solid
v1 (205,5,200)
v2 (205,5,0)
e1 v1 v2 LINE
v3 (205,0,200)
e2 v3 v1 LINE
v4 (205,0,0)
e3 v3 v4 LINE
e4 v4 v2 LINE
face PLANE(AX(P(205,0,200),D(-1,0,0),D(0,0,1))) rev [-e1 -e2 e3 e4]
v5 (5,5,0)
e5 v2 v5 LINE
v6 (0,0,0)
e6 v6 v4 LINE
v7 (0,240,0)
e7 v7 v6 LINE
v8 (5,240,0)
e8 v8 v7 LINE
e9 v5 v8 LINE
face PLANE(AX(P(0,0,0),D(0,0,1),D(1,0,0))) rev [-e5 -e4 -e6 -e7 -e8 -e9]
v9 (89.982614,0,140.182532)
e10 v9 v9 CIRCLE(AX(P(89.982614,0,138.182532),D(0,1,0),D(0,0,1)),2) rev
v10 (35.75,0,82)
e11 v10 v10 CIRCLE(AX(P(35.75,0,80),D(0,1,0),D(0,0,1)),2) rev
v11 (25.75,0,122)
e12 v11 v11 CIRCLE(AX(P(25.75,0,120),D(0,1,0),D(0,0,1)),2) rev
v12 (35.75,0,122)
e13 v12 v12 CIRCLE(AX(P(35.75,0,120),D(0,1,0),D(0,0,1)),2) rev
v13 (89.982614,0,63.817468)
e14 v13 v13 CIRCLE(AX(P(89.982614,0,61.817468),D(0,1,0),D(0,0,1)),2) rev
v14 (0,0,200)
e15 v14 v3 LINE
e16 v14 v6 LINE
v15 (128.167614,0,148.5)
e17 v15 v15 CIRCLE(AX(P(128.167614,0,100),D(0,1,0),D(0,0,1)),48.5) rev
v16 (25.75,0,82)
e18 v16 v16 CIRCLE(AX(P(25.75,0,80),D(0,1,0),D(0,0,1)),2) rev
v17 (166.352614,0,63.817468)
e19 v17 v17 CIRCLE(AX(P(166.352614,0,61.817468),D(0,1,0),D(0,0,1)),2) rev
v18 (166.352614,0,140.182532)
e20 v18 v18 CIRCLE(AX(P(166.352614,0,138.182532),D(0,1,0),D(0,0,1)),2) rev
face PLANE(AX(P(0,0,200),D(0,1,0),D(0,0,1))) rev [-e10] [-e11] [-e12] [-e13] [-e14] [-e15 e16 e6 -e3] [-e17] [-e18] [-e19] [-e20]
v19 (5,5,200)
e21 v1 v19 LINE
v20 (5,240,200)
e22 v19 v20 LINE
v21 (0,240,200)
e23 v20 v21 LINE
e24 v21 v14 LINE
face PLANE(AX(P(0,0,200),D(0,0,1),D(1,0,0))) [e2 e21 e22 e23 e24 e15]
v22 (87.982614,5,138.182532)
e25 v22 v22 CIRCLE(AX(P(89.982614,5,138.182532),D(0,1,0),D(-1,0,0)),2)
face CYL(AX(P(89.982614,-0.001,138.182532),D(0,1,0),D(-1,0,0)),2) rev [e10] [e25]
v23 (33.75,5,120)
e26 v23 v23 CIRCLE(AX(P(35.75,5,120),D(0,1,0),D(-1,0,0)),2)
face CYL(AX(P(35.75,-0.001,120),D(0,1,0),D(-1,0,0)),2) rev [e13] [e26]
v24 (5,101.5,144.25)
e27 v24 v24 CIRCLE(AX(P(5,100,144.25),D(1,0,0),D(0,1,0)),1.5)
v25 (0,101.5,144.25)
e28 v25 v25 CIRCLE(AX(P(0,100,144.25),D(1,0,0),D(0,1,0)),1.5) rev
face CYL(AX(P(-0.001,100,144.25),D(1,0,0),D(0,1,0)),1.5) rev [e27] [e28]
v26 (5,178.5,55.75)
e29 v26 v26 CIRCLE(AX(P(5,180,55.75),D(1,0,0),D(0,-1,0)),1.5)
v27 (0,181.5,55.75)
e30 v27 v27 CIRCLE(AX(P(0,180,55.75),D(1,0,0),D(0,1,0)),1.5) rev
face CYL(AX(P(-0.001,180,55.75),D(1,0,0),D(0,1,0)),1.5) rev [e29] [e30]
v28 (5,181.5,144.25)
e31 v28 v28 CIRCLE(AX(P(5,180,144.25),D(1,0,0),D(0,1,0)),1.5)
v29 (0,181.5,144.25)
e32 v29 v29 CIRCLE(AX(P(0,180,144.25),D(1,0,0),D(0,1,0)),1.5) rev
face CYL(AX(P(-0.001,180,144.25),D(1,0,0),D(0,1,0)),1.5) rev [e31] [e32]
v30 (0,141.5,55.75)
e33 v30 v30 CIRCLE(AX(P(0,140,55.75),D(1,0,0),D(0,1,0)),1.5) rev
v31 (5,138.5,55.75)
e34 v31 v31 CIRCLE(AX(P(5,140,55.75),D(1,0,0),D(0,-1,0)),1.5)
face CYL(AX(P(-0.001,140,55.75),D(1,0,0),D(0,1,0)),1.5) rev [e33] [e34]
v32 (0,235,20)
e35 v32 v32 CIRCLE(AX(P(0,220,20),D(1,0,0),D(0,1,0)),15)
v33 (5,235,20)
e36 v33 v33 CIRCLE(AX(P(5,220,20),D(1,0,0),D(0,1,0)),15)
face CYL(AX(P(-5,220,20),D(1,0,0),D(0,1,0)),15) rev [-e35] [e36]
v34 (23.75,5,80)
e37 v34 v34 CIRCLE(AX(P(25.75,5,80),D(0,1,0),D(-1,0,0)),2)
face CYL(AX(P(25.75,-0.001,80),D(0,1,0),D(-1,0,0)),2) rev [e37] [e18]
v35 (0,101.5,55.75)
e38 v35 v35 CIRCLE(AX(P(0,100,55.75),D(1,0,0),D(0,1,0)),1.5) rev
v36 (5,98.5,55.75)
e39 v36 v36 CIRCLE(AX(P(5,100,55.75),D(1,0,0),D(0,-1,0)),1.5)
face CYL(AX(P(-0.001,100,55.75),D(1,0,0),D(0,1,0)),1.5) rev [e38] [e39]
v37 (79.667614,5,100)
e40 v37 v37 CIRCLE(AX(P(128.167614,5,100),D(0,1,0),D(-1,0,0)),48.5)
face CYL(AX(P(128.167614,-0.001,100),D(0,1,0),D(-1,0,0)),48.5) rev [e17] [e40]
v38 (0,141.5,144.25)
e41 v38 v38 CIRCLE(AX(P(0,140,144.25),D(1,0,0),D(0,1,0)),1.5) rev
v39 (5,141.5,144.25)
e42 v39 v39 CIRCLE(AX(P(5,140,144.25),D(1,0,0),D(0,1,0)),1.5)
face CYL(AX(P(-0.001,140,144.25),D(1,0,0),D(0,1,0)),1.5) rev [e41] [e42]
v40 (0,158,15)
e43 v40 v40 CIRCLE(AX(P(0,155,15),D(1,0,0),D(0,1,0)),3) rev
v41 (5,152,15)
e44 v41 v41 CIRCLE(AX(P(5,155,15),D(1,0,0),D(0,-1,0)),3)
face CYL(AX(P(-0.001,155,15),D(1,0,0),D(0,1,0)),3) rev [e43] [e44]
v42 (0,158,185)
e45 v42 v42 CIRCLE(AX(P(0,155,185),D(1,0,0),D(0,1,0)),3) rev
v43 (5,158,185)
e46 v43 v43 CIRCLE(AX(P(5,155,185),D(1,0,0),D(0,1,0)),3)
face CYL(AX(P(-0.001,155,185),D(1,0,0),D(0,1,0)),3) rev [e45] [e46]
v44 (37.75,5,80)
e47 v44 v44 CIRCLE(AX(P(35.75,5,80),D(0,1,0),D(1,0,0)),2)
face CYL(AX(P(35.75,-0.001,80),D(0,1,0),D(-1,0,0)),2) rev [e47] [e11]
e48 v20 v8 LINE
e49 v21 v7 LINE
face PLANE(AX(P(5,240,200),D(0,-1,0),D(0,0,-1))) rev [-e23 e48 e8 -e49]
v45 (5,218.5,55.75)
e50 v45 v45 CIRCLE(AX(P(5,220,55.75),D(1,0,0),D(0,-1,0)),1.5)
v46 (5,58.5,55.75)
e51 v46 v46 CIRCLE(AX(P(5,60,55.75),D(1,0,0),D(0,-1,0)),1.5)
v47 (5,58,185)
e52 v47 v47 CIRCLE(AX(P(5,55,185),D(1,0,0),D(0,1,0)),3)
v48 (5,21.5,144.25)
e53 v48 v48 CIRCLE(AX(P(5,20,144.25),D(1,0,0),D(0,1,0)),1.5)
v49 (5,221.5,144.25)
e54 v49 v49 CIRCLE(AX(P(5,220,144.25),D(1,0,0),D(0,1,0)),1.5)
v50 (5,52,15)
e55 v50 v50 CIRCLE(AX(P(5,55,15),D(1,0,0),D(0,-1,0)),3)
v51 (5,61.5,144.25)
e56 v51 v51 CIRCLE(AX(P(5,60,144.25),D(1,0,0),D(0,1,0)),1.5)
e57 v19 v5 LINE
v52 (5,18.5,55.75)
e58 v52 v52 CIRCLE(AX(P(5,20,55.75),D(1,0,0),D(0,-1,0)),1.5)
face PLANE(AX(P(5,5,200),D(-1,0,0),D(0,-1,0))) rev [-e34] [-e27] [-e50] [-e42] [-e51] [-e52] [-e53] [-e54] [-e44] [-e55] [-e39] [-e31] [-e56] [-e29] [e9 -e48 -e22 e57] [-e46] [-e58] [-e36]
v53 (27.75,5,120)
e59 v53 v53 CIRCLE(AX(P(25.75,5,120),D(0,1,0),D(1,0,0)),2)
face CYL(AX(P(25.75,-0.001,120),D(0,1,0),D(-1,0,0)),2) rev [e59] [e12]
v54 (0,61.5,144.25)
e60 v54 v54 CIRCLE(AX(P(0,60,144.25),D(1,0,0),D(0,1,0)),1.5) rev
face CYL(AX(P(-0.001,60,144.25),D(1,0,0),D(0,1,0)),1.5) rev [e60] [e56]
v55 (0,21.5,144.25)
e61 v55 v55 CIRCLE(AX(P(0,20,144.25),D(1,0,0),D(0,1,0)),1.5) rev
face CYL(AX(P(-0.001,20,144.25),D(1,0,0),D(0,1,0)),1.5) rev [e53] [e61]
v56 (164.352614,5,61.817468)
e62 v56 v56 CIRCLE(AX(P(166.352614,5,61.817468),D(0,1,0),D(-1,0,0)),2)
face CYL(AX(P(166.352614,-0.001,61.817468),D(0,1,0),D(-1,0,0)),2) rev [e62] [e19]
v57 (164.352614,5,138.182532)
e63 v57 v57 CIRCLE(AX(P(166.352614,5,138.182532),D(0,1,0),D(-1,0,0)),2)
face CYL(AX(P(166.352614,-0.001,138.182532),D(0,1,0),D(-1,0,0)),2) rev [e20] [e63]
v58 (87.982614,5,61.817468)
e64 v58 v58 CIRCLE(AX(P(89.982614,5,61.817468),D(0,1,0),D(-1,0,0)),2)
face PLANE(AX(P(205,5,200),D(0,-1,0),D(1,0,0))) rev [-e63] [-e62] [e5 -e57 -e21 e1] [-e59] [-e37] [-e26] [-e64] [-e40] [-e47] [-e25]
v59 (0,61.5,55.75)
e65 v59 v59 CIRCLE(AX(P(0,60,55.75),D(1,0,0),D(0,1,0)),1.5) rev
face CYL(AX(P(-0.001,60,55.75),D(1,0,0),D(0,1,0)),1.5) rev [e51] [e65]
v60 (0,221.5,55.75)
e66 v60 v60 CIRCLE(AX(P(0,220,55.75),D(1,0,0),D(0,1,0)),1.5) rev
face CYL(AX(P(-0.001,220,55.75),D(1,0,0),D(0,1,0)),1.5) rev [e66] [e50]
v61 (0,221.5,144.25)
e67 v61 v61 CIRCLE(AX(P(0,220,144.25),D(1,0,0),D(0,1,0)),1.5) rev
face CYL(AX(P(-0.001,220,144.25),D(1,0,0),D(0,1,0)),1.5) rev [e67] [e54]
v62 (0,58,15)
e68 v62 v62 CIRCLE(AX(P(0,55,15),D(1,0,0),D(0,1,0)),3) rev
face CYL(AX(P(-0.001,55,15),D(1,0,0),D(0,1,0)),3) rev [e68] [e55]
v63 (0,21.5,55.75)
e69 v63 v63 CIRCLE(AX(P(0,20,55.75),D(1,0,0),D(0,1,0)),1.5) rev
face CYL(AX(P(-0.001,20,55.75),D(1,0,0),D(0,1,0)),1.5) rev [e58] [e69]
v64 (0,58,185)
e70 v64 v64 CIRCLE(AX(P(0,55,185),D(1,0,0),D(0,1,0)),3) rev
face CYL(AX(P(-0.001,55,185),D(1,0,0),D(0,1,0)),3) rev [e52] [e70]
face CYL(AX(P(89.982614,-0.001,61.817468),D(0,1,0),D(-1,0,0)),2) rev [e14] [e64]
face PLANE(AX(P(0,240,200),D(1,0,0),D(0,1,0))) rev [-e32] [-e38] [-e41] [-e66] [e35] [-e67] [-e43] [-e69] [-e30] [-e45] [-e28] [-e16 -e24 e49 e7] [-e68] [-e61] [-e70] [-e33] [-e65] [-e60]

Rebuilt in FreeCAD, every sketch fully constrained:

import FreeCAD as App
import Part
import Sketcher
from FreeCAD import Vector
Q = App.Units.Quantity

doc = App.newDocument("Part")
body = doc.addObject("PartDesign::Body", "Body")

sketch1 = body.newObject("Sketcher::SketchObject", "Sketch")
sketch1.AttachmentSupport = (doc.getObject("XY_Plane"), [""])
sketch1.MapMode = "FlatFace"
sketch1.addGeometry([
    Part.LineSegment(Vector(0, 240, 0), Vector(0, 0, 0)),
    Part.LineSegment(Vector(0, 0, 0), Vector(205, 0, 0)),
    Part.LineSegment(Vector(205, 0, 0), Vector(205, 5, 0)),
    Part.LineSegment(Vector(205, 5, 0), Vector(5, 5, 0)),
    Part.LineSegment(Vector(5, 5, 0), Vector(5, 240, 0)),
    Part.LineSegment(Vector(5, 240, 0), Vector(0, 240, 0)),
], False)
sketch1.addConstraint([
    Sketcher.Constraint("Coincident", 0, 2, 1, 1),
    Sketcher.Constraint("Coincident", 1, 2, 2, 1),
    Sketcher.Constraint("Coincident", 2, 2, 3, 1),
    Sketcher.Constraint("Coincident", 3, 2, 4, 1),
    Sketcher.Constraint("Coincident", 4, 2, 5, 1),
    Sketcher.Constraint("Coincident", 5, 2, 0, 1),
    Sketcher.Constraint("Vertical", 0),
    Sketcher.Constraint("Horizontal", 1),
    Sketcher.Constraint("Vertical", 2),
    Sketcher.Constraint("Horizontal", 3),
    Sketcher.Constraint("Vertical", 4),
    Sketcher.Constraint("Horizontal", 5),
    Sketcher.Constraint("Coincident", 0, 2, -1, 1),
    Sketcher.Constraint("Equal", 5, 2),
    Sketcher.Constraint("DistanceX", 1, 1, 1, 2, Q("205 mm")),
    Sketcher.Constraint("DistanceX", 3, 2, 3, 1, Q("200 mm")),
    Sketcher.Constraint("DistanceY", 0, 2, 0, 1, Q("240 mm")),
])
pad1 = body.newObject("PartDesign::Pad", "Pad")
pad1.Profile = sketch1
pad1.Length = 200

sketch2 = body.newObject("Sketcher::SketchObject", "Sketch001")
sketch2.AttachmentSupport = (doc.getObject("XZ_Plane"), [""])
sketch2.MapMode = "FlatFace"
sketch2.AttachmentOffset = App.Placement(Vector(0, 0, -5), App.Rotation())
sketch2.addGeometry(Part.Circle(Vector(128, 100, 0), Vector(0, 0, 1), 48), False)
sketch2.addConstraint([
    Sketcher.Constraint("Diameter", 0, Q("97 mm")),
    Sketcher.Constraint("DistanceY", -1, 1, 0, 3, Q("100 mm")),
    Sketcher.Constraint("DistanceX", -1, 1, 0, 3, Q("128.167614 mm")),
])
pocket1 = body.newObject("PartDesign::Pocket", "Pocket")
pocket1.Profile = sketch2
pocket1.Type = "UpToFirst"
pocket1.Reversed = True

sketch3 = body.newObject("Sketcher::SketchObject", "Sketch002")
sketch3.AttachmentSupport = (doc.getObject("XZ_Plane"), [""])
sketch3.MapMode = "FlatFace"
sketch3.AttachmentOffset = App.Placement(Vector(0, 0, -5), App.Rotation())
sketch3.addGeometry(Part.Circle(Vector(90, 61.8, 0), Vector(0, 0, 1), 2), False)
sketch3.addConstraint([
    Sketcher.Constraint("Diameter", 0, Q("4 mm")),
    Sketcher.Constraint("DistanceX", -1, 1, 0, 3, Q("89.982614 mm")),
    Sketcher.Constraint("DistanceY", -1, 1, 0, 3, Q("61.817468 mm")),
])
pocket2 = body.newObject("PartDesign::Pocket", "Pocket001")
pocket2.Profile = sketch3
pocket2.Type = "UpToFirst"
pocket2.Reversed = True

sketch4 = body.newObject("Sketcher::SketchObject", "Sketch003")
sketch4.AttachmentSupport = (doc.getObject("XZ_Plane"), [""])
sketch4.MapMode = "FlatFace"
sketch4.AttachmentOffset = App.Placement(Vector(0, 0, -5), App.Rotation())
sketch4.addGeometry(Part.Circle(Vector(166.4, 61.8, 0), Vector(0, 0, 1), 2), False)
sketch4.addConstraint([
    Sketcher.Constraint("Diameter", 0, Q("4 mm")),
    Sketcher.Constraint("DistanceX", -1, 1, 0, 3, Q("166.352614 mm")),
    Sketcher.Constraint("DistanceY", -1, 1, 0, 3, Q("61.817468 mm")),
])
pocket3 = body.newObject("PartDesign::Pocket", "Pocket002")
pocket3.Profile = sketch4
pocket3.Type = "UpToFirst"
pocket3.Reversed = True

sketch5 = body.newObject("Sketcher::SketchObject", "Sketch004")
sketch5.AttachmentSupport = (doc.getObject("XZ_Plane"), [""])
sketch5.MapMode = "FlatFace"
sketch5.AttachmentOffset = App.Placement(Vector(0, 0, -5), App.Rotation())
sketch5.addGeometry(Part.Circle(Vector(90, 138.2, 0), Vector(0, 0, 1), 2), False)
sketch5.addConstraint([
    Sketcher.Constraint("Diameter", 0, Q("4 mm")),
    Sketcher.Constraint("DistanceX", -1, 1, 0, 3, Q("89.982614 mm")),
    Sketcher.Constraint("DistanceY", -1, 1, 0, 3, Q("138.182532 mm")),
])
pocket4 = body.newObject("PartDesign::Pocket", "Pocket003")
pocket4.Profile = sketch5
pocket4.Type = "UpToFirst"
pocket4.Reversed = True

sketch6 = body.newObject("Sketcher::SketchObject", "Sketch005")
sketch6.AttachmentSupport = (doc.getObject("XZ_Plane"), [""])
sketch6.MapMode = "FlatFace"
sketch6.AttachmentOffset = App.Placement(Vector(0, 0, -5), App.Rotation())
sketch6.addGeometry(Part.Circle(Vector(166.4, 138.2, 0), Vector(0, 0, 1), 2), False)
sketch6.addConstraint([
    Sketcher.Constraint("Diameter", 0, Q("4 mm")),
    Sketcher.Constraint("DistanceX", -1, 1, 0, 3, Q("166.352614 mm")),
    Sketcher.Constraint("DistanceY", -1, 1, 0, 3, Q("138.182532 mm")),
])
pocket5 = body.newObject("PartDesign::Pocket", "Pocket004")
pocket5.Profile = sketch6
pocket5.Type = "UpToFirst"
pocket5.Reversed = True

sketch7 = body.newObject("Sketcher::SketchObject", "Sketch006")
sketch7.AttachmentSupport = (doc.getObject("XZ_Plane"), [""])
sketch7.MapMode = "FlatFace"
sketch7.AttachmentOffset = App.Placement(Vector(0, 0, -5), App.Rotation())
sketch7.addGeometry(Part.Circle(Vector(25.8, 80, 0), Vector(0, 0, 1), 2), False)
sketch7.addConstraint([
    Sketcher.Constraint("Diameter", 0, Q("4 mm")),
    Sketcher.Constraint("DistanceY", -1, 1, 0, 3, Q("80 mm")),
    Sketcher.Constraint("DistanceX", -1, 1, 0, 3, Q("25.75 mm")),
])
pocket6 = body.newObject("PartDesign::Pocket", "Pocket005")
pocket6.Profile = sketch7
pocket6.Type = "UpToFirst"
pocket6.Reversed = True

sketch8 = body.newObject("Sketcher::SketchObject", "Sketch007")
sketch8.AttachmentSupport = (doc.getObject("XZ_Plane"), [""])
sketch8.MapMode = "FlatFace"
sketch8.AttachmentOffset = App.Placement(Vector(0, 0, -5), App.Rotation())
sketch8.addGeometry(Part.Circle(Vector(25.8, 120, 0), Vector(0, 0, 1), 2), False)
sketch8.addConstraint([
    Sketcher.Constraint("Diameter", 0, Q("4 mm")),
    Sketcher.Constraint("DistanceY", -1, 1, 0, 3, Q("120 mm")),
    Sketcher.Constraint("DistanceX", -1, 1, 0, 3, Q("25.75 mm")),
])
pocket7 = body.newObject("PartDesign::Pocket", "Pocket006")
pocket7.Profile = sketch8
pocket7.Type = "UpToFirst"
pocket7.Reversed = True

sketch9 = body.newObject("Sketcher::SketchObject", "Sketch008")
sketch9.AttachmentSupport = (doc.getObject("XZ_Plane"), [""])
sketch9.MapMode = "FlatFace"
sketch9.AttachmentOffset = App.Placement(Vector(0, 0, -5), App.Rotation())
sketch9.addGeometry(Part.Circle(Vector(35.8, 120, 0), Vector(0, 0, 1), 2), False)
sketch9.addConstraint([
    Sketcher.Constraint("Diameter", 0, Q("4 mm")),
    Sketcher.Constraint("DistanceY", -1, 1, 0, 3, Q("120 mm")),
    Sketcher.Constraint("DistanceX", -1, 1, 0, 3, Q("35.75 mm")),
])
pocket8 = body.newObject("PartDesign::Pocket", "Pocket007")
pocket8.Profile = sketch9
pocket8.Type = "UpToFirst"
pocket8.Reversed = True

sketch10 = body.newObject("Sketcher::SketchObject", "Sketch009")
sketch10.AttachmentSupport = (doc.getObject("XZ_Plane"), [""])
sketch10.MapMode = "FlatFace"
sketch10.AttachmentOffset = App.Placement(Vector(0, 0, -5), App.Rotation())
sketch10.addGeometry(Part.Circle(Vector(35.8, 80, 0), Vector(0, 0, 1), 2), False)
sketch10.addConstraint([
    Sketcher.Constraint("Diameter", 0, Q("4 mm")),
    Sketcher.Constraint("DistanceY", -1, 1, 0, 3, Q("80 mm")),
    Sketcher.Constraint("DistanceX", -1, 1, 0, 3, Q("35.75 mm")),
])
pocket9 = body.newObject("PartDesign::Pocket", "Pocket008")
pocket9.Profile = sketch10
pocket9.Type = "UpToFirst"
pocket9.Reversed = True

sketch11 = body.newObject("Sketcher::SketchObject", "Sketch010")
sketch11.AttachmentSupport = (doc.getObject("YZ_Plane"), [""])
sketch11.MapMode = "FlatFace"
sketch11.AttachmentOffset = App.Placement(Vector(0, 0, 5), App.Rotation())
sketch11.addGeometry(Part.Circle(Vector(220, 20, 0), Vector(0, 0, 1), 15), False)
sketch11.addConstraint([
    Sketcher.Constraint("Diameter", 0, Q("30 mm")),
    Sketcher.Constraint("DistanceX", -1, 1, 0, 3, Q("220 mm")),
    Sketcher.Constraint("DistanceY", -1, 1, 0, 3, Q("20 mm")),
])
pocket10 = body.newObject("PartDesign::Pocket", "Pocket009")
pocket10.Profile = sketch11
pocket10.Length = 10

sketch12 = body.newObject("Sketcher::SketchObject", "Sketch011")
sketch12.AttachmentSupport = (doc.getObject("YZ_Plane"), [""])
sketch12.MapMode = "FlatFace"
sketch12.AttachmentOffset = App.Placement(Vector(0, 0, 5), App.Rotation())
sketch12.addGeometry(Part.Circle(Vector(55, 185, 0), Vector(0, 0, 1), 3), False)
sketch12.addConstraint([
    Sketcher.Constraint("Diameter", 0, Q("6 mm")),
    Sketcher.Constraint("DistanceX", -1, 1, 0, 3, Q("55 mm")),
    Sketcher.Constraint("DistanceY", -1, 1, 0, 3, Q("185 mm")),
])
pocket11 = body.newObject("PartDesign::Pocket", "Pocket010")
pocket11.Profile = sketch12
pocket11.Type = "UpToFirst"

sketch13 = body.newObject("Sketcher::SketchObject", "Sketch012")
sketch13.AttachmentSupport = (doc.getObject("YZ_Plane"), [""])
sketch13.MapMode = "FlatFace"
sketch13.AttachmentOffset = App.Placement(Vector(0, 0, 5), App.Rotation())
sketch13.addGeometry(Part.Circle(Vector(155, 185, 0), Vector(0, 0, 1), 3), False)
sketch13.addConstraint([
    Sketcher.Constraint("Diameter", 0, Q("6 mm")),
    Sketcher.Constraint("DistanceX", -1, 1, 0, 3, Q("155 mm")),
    Sketcher.Constraint("DistanceY", -1, 1, 0, 3, Q("185 mm")),
])
pocket12 = body.newObject("PartDesign::Pocket", "Pocket011")
pocket12.Profile = sketch13
pocket12.Type = "UpToFirst"

sketch14 = body.newObject("Sketcher::SketchObject", "Sketch013")
sketch14.AttachmentSupport = (doc.getObject("YZ_Plane"), [""])
sketch14.MapMode = "FlatFace"
sketch14.AttachmentOffset = App.Placement(Vector(0, 0, 5), App.Rotation())
sketch14.addGeometry(Part.Circle(Vector(55, 15, 0), Vector(0, 0, 1), 3), False)
sketch14.addConstraint([
    Sketcher.Constraint("Diameter", 0, Q("6 mm")),
    Sketcher.Constraint("DistanceX", -1, 1, 0, 3, Q("55 mm")),
    Sketcher.Constraint("DistanceY", -1, 1, 0, 3, Q("15 mm")),
])
pocket13 = body.newObject("PartDesign::Pocket", "Pocket012")
pocket13.Profile = sketch14
pocket13.Type = "UpToFirst"

sketch15 = body.newObject("Sketcher::SketchObject", "Sketch014")
sketch15.AttachmentSupport = (doc.getObject("YZ_Plane"), [""])
sketch15.MapMode = "FlatFace"
sketch15.AttachmentOffset = App.Placement(Vector(0, 0, 5), App.Rotation())
sketch15.addGeometry(Part.Circle(Vector(155, 15, 0), Vector(0, 0, 1), 3), False)
sketch15.addConstraint([
    Sketcher.Constraint("Diameter", 0, Q("6 mm")),
    Sketcher.Constraint("DistanceX", -1, 1, 0, 3, Q("155 mm")),
    Sketcher.Constraint("DistanceY", -1, 1, 0, 3, Q("15 mm")),
])
pocket14 = body.newObject("PartDesign::Pocket", "Pocket013")
pocket14.Profile = sketch15
pocket14.Type = "UpToFirst"

sketch16 = body.newObject("Sketcher::SketchObject", "Sketch015")
sketch16.AttachmentSupport = (doc.getObject("YZ_Plane"), [""])
sketch16.MapMode = "FlatFace"
sketch16.AttachmentOffset = App.Placement(Vector(0, 0, 5), App.Rotation())
sketch16.addGeometry(Part.Circle(Vector(220, 144.2, 0), Vector(0, 0, 1), 1.5), False)
sketch16.addConstraint([
    Sketcher.Constraint("Diameter", 0, Q("3 mm")),
    Sketcher.Constraint("DistanceX", -1, 1, 0, 3, Q("220 mm")),
    Sketcher.Constraint("DistanceY", -1, 1, 0, 3, Q("144.25 mm")),
])
pocket15 = body.newObject("PartDesign::Pocket", "Pocket014")
pocket15.Profile = sketch16
pocket15.Type = "UpToFirst"

sketch17 = body.newObject("Sketcher::SketchObject", "Sketch016")
sketch17.AttachmentSupport = (doc.getObject("YZ_Plane"), [""])
sketch17.MapMode = "FlatFace"
sketch17.AttachmentOffset = App.Placement(Vector(0, 0, 5), App.Rotation())
sketch17.addGeometry(Part.Circle(Vector(220, 55.8, 0), Vector(0, 0, 1), 1.5), False)
sketch17.addConstraint([
    Sketcher.Constraint("Diameter", 0, Q("3 mm")),
    Sketcher.Constraint("DistanceX", -1, 1, 0, 3, Q("220 mm")),
    Sketcher.Constraint("DistanceY", -1, 1, 0, 3, Q("55.75 mm")),
])
pocket16 = body.newObject("PartDesign::Pocket", "Pocket015")
pocket16.Profile = sketch17
pocket16.Type = "UpToFirst"

sketch18 = body.newObject("Sketcher::SketchObject", "Sketch017")
sketch18.AttachmentSupport = (doc.getObject("YZ_Plane"), [""])
sketch18.MapMode = "FlatFace"
sketch18.AttachmentOffset = App.Placement(Vector(0, 0, 5), App.Rotation())
sketch18.addGeometry(Part.Circle(Vector(180, 144.2, 0), Vector(0, 0, 1), 1.5), False)
sketch18.addConstraint([
    Sketcher.Constraint("Diameter", 0, Q("3 mm")),
    Sketcher.Constraint("DistanceX", -1, 1, 0, 3, Q("180 mm")),
    Sketcher.Constraint("DistanceY", -1, 1, 0, 3, Q("144.25 mm")),
])
pocket17 = body.newObject("PartDesign::Pocket", "Pocket016")
pocket17.Profile = sketch18
pocket17.Type = "UpToFirst"

sketch19 = body.newObject("Sketcher::SketchObject", "Sketch018")
sketch19.AttachmentSupport = (doc.getObject("YZ_Plane"), [""])
sketch19.MapMode = "FlatFace"
sketch19.AttachmentOffset = App.Placement(Vector(0, 0, 5), App.Rotation())
sketch19.addGeometry(Part.Circle(Vector(180, 55.8, 0), Vector(0, 0, 1), 1.5), False)
sketch19.addConstraint([
    Sketcher.Constraint("Diameter", 0, Q("3 mm")),
    Sketcher.Constraint("DistanceX", -1, 1, 0, 3, Q("180 mm")),
    Sketcher.Constraint("DistanceY", -1, 1, 0, 3, Q("55.75 mm")),
])
pocket18 = body.newObject("PartDesign::Pocket", "Pocket017")
pocket18.Profile = sketch19
pocket18.Type = "UpToFirst"

sketch20 = body.newObject("Sketcher::SketchObject", "Sketch019")
sketch20.AttachmentSupport = (doc.getObject("YZ_Plane"), [""])
sketch20.MapMode = "FlatFace"
sketch20.AttachmentOffset = App.Placement(Vector(0, 0, 5), App.Rotation())
sketch20.addGeometry(Part.Circle(Vector(140, 144.2, 0), Vector(0, 0, 1), 1.5), False)
sketch20.addConstraint([
    Sketcher.Constraint("Diameter", 0, Q("3 mm")),
    Sketcher.Constraint("DistanceX", -1, 1, 0, 3, Q("140 mm")),
    Sketcher.Constraint("DistanceY", -1, 1, 0, 3, Q("144.25 mm")),
])
pocket19 = body.newObject("PartDesign::Pocket", "Pocket018")
pocket19.Profile = sketch20
pocket19.Type = "UpToFirst"

sketch21 = body.newObject("Sketcher::SketchObject", "Sketch020")
sketch21.AttachmentSupport = (doc.getObject("YZ_Plane"), [""])
sketch21.MapMode = "FlatFace"
sketch21.AttachmentOffset = App.Placement(Vector(0, 0, 5), App.Rotation())
sketch21.addGeometry(Part.Circle(Vector(140, 55.8, 0), Vector(0, 0, 1), 1.5), False)
sketch21.addConstraint([
    Sketcher.Constraint("Diameter", 0, Q("3 mm")),
    Sketcher.Constraint("DistanceX", -1, 1, 0, 3, Q("140 mm")),
    Sketcher.Constraint("DistanceY", -1, 1, 0, 3, Q("55.75 mm")),
])
pocket20 = body.newObject("PartDesign::Pocket", "Pocket019")
pocket20.Profile = sketch21
pocket20.Type = "UpToFirst"

sketch22 = body.newObject("Sketcher::SketchObject", "Sketch021")
sketch22.AttachmentSupport = (doc.getObject("YZ_Plane"), [""])
sketch22.MapMode = "FlatFace"
sketch22.AttachmentOffset = App.Placement(Vector(0, 0, 5), App.Rotation())
sketch22.addGeometry(Part.Circle(Vector(100, 144.2, 0), Vector(0, 0, 1), 1.5), False)
sketch22.addConstraint([
    Sketcher.Constraint("Diameter", 0, Q("3 mm")),
    Sketcher.Constraint("DistanceX", -1, 1, 0, 3, Q("100 mm")),
    Sketcher.Constraint("DistanceY", -1, 1, 0, 3, Q("144.25 mm")),
])
pocket21 = body.newObject("PartDesign::Pocket", "Pocket020")
pocket21.Profile = sketch22
pocket21.Type = "UpToFirst"

sketch23 = body.newObject("Sketcher::SketchObject", "Sketch022")
sketch23.AttachmentSupport = (doc.getObject("YZ_Plane"), [""])
sketch23.MapMode = "FlatFace"
sketch23.AttachmentOffset = App.Placement(Vector(0, 0, 5), App.Rotation())
sketch23.addGeometry(Part.Circle(Vector(100, 55.8, 0), Vector(0, 0, 1), 1.5), False)
sketch23.addConstraint([
    Sketcher.Constraint("Diameter", 0, Q("3 mm")),
    Sketcher.Constraint("DistanceX", -1, 1, 0, 3, Q("100 mm")),
    Sketcher.Constraint("DistanceY", -1, 1, 0, 3, Q("55.75 mm")),
])
pocket22 = body.newObject("PartDesign::Pocket", "Pocket021")
pocket22.Profile = sketch23
pocket22.Type = "UpToFirst"

sketch24 = body.newObject("Sketcher::SketchObject", "Sketch023")
sketch24.AttachmentSupport = (doc.getObject("YZ_Plane"), [""])
sketch24.MapMode = "FlatFace"
sketch24.AttachmentOffset = App.Placement(Vector(0, 0, 5), App.Rotation())
sketch24.addGeometry(Part.Circle(Vector(60, 144.2, 0), Vector(0, 0, 1), 1.5), False)
sketch24.addConstraint([
    Sketcher.Constraint("Diameter", 0, Q("3 mm")),
    Sketcher.Constraint("DistanceX", -1, 1, 0, 3, Q("60 mm")),
    Sketcher.Constraint("DistanceY", -1, 1, 0, 3, Q("144.25 mm")),
])
pocket23 = body.newObject("PartDesign::Pocket", "Pocket022")
pocket23.Profile = sketch24
pocket23.Type = "UpToFirst"

sketch25 = body.newObject("Sketcher::SketchObject", "Sketch024")
sketch25.AttachmentSupport = (doc.getObject("YZ_Plane"), [""])
sketch25.MapMode = "FlatFace"
sketch25.AttachmentOffset = App.Placement(Vector(0, 0, 5), App.Rotation())
sketch25.addGeometry(Part.Circle(Vector(60, 55.8, 0), Vector(0, 0, 1), 1.5), False)
sketch25.addConstraint([
    Sketcher.Constraint("Diameter", 0, Q("3 mm")),
    Sketcher.Constraint("DistanceX", -1, 1, 0, 3, Q("60 mm")),
    Sketcher.Constraint("DistanceY", -1, 1, 0, 3, Q("55.75 mm")),
])
pocket24 = body.newObject("PartDesign::Pocket", "Pocket023")
pocket24.Profile = sketch25
pocket24.Type = "UpToFirst"

sketch26 = body.newObject("Sketcher::SketchObject", "Sketch025")
sketch26.AttachmentSupport = (doc.getObject("YZ_Plane"), [""])
sketch26.MapMode = "FlatFace"
sketch26.AttachmentOffset = App.Placement(Vector(0, 0, 5), App.Rotation())
sketch26.addGeometry(Part.Circle(Vector(20, 144.2, 0), Vector(0, 0, 1), 1.5), False)
sketch26.addConstraint([
    Sketcher.Constraint("Diameter", 0, Q("3 mm")),
    Sketcher.Constraint("DistanceX", -1, 1, 0, 3, Q("20 mm")),
    Sketcher.Constraint("DistanceY", -1, 1, 0, 3, Q("144.25 mm")),
])
pocket25 = body.newObject("PartDesign::Pocket", "Pocket024")
pocket25.Profile = sketch26
pocket25.Type = "UpToFirst"

sketch27 = body.newObject("Sketcher::SketchObject", "Sketch026")
sketch27.AttachmentSupport = (doc.getObject("YZ_Plane"), [""])
sketch27.MapMode = "FlatFace"
sketch27.AttachmentOffset = App.Placement(Vector(0, 0, 5), App.Rotation())
sketch27.addGeometry(Part.Circle(Vector(20, 55.8, 0), Vector(0, 0, 1), 1.5), False)
sketch27.addConstraint([
    Sketcher.Constraint("Diameter", 0, Q("3 mm")),
    Sketcher.Constraint("DistanceX", -1, 1, 0, 3, Q("20 mm")),
    Sketcher.Constraint("DistanceY", -1, 1, 0, 3, Q("55.75 mm")),
])
pocket26 = body.newObject("PartDesign::Pocket", "Pocket025")
pocket26.Profile = sketch27
pocket26.Type = "UpToFirst"

doc.recompute()
